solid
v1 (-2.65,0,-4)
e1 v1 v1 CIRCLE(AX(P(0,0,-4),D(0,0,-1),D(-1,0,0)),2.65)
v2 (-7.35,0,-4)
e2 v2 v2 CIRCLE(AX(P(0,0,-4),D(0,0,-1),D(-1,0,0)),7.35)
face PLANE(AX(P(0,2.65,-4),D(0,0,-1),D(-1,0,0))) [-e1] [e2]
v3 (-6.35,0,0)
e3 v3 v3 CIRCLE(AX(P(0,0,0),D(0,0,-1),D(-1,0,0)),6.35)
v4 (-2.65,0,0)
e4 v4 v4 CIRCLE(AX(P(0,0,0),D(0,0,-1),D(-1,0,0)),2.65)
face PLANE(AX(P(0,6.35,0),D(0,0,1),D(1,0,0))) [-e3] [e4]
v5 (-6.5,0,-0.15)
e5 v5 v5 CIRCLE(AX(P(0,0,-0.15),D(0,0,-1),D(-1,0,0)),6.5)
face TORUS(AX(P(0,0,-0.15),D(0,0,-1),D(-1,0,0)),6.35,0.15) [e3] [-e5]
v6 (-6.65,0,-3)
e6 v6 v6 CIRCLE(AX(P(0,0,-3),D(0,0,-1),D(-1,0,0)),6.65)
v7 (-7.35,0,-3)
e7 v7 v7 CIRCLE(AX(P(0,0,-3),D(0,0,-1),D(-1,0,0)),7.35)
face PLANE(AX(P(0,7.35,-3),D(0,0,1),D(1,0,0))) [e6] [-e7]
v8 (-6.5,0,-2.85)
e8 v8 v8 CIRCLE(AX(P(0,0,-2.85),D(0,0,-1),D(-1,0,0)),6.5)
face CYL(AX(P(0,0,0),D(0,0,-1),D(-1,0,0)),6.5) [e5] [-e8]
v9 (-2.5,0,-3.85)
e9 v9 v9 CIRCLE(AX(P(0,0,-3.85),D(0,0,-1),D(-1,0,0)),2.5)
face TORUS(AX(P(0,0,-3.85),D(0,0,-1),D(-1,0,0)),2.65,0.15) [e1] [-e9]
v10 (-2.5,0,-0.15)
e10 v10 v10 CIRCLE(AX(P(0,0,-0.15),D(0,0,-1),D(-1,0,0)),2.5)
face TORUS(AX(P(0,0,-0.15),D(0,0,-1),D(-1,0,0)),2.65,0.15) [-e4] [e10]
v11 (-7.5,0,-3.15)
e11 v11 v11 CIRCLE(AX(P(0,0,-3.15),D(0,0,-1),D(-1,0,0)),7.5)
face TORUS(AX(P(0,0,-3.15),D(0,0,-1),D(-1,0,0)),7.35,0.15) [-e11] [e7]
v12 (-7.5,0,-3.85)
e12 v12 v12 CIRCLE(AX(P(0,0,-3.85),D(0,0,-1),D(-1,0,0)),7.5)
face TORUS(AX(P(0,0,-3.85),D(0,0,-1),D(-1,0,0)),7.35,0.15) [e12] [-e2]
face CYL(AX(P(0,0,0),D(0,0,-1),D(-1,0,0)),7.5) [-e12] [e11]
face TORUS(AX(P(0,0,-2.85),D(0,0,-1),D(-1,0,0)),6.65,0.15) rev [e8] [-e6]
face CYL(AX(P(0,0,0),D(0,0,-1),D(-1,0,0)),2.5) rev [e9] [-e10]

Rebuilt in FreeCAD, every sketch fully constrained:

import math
import FreeCAD as App
import Part
import Sketcher
Q = App.Units.Quantity

doc = App.newDocument("Part")
body = doc.addObject("PartDesign::Body", "Body")

# Sketch on YZ plane
sketch1 = body.newObject("Sketcher::SketchObject", "Sketch")
sketch1.AttachmentSupport = (doc.getObject("YZ_Plane"), [""])
sketch1.MapMode = "FlatFace"
sketch1.addGeometry([
    Part.LineSegment(App.Vector(2.65, -4, 0), App.Vector(7.35, -4, 0)),  # 0
    Part.ArcOfCircle(Part.Circle(App.Vector(7.35, -3.85, 0), App.Vector(0, 0, 1), 0.15), math.radians(-90), math.radians(0)),  # 1
    Part.LineSegment(App.Vector(7.5, -3.85, 0), App.Vector(7.5, -3.15, 0)),  # 2
    Part.ArcOfCircle(Part.Circle(App.Vector(7.35, -3.15, 0), App.Vector(0, 0, 1), 0.15), math.radians(0), math.radians(90)),  # 3
    Part.LineSegment(App.Vector(7.35, -3, 0), App.Vector(6.65, -3, 0)),  # 4
    Part.ArcOfCircle(Part.Circle(App.Vector(6.65, -2.85, 0), App.Vector(0, 0, 1), 0.15), math.radians(-180), math.radians(-90)),  # 5
    Part.LineSegment(App.Vector(6.5, -2.85, 0), App.Vector(6.5, -0.15, 0)),  # 6
    Part.ArcOfCircle(Part.Circle(App.Vector(6.35, -0.15, 0), App.Vector(0, 0, 1), 0.15), math.radians(0), math.radians(90)),  # 7
    Part.LineSegment(App.Vector(6.35, 0, 0), App.Vector(2.65, 0, 0)),  # 8
    Part.ArcOfCircle(Part.Circle(App.Vector(2.65, -0.15, 0), App.Vector(0, 0, 1), 0.15), math.radians(90), math.radians(180)),  # 9
    Part.LineSegment(App.Vector(2.5, -0.15, 0), App.Vector(2.5, -3.85, 0)),  # 10
    Part.ArcOfCircle(Part.Circle(App.Vector(2.65, -3.85, 0), App.Vector(0, 0, 1), 0.15), math.radians(-180), math.radians(-90)),  # 11
], False)
sketch1.addConstraint([
    Sketcher.Constraint("Tangent", 0, 2, 1, 1),
    Sketcher.Constraint("Tangent", 1, 2, 2, 1),
    Sketcher.Constraint("Tangent", 2, 2, 3, 1),
    Sketcher.Constraint("Tangent", 3, 2, 4, 1),
    Sketcher.Constraint("Tangent", 4, 2, 5, 2),
    Sketcher.Constraint("Tangent", 5, 1, 6, 1),
    Sketcher.Constraint("Tangent", 6, 2, 7, 1),
    Sketcher.Constraint("Tangent", 7, 2, 8, 1),
    Sketcher.Constraint("Tangent", 8, 2, 9, 1),
    Sketcher.Constraint("Tangent", 9, 2, 10, 1),
    Sketcher.Constraint("Tangent", 10, 2, 11, 1),
    Sketcher.Constraint("Tangent", 11, 2, 0, 1),
    Sketcher.Constraint("Horizontal", 0),
    Sketcher.Constraint("Vertical", 2),
    Sketcher.Constraint("Horizontal", 4),
    Sketcher.Constraint("Vertical", 6),
    Sketcher.Constraint("Horizontal", 8),
    Sketcher.Constraint("Vertical", 10),
    Sketcher.Constraint("Equal", 1, 3),
    Sketcher.Constraint("Equal", 3, 5),
    Sketcher.Constraint("Equal", 5, 7),
    Sketcher.Constraint("Equal", 7, 9),
    Sketcher.Constraint("Equal", 9, 11),
    Sketcher.Constraint("PointOnObject", 7, 2, -1),
    Sketcher.Constraint("Equal", 4, 2),
    Sketcher.Constraint("Equal", 8, 10),
    Sketcher.Constraint("Radius", 1, Q("0.15 mm")),
    Sketcher.Constraint("DistanceX", 0, 1, 0, 2, Q("4.7 mm")),
    Sketcher.Constraint("DistanceX", 4, 2, 4, 1, Q("0.7 mm")),
    Sketcher.Constraint("DistanceX", -1, 1, 1, 2, Q("7.5 mm")),
])
revolution = body.newObject("PartDesign::Revolution", "Revolution")
revolution.Profile = sketch1
revolution.ReferenceAxis = (sketch1, ["V_Axis"])
revolution.Angle = 360

doc.recompute()
